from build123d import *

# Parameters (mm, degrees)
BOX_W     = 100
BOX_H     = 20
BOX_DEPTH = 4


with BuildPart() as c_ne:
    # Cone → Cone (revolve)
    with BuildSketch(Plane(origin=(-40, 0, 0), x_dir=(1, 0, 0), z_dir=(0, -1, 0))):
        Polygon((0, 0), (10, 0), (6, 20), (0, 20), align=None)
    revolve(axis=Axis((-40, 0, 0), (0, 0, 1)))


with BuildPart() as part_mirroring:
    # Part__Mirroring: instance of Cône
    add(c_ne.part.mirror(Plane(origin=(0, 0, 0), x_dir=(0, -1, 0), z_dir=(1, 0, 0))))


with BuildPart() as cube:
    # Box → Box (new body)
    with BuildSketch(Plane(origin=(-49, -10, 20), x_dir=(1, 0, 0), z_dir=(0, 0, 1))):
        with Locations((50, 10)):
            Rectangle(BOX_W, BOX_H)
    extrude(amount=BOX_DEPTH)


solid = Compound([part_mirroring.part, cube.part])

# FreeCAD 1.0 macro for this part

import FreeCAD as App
import Part
import Sketcher
from FreeCAD import Vector
Q = App.Units.Quantity

doc = App.newDocument("Part")
body = doc.addObject("PartDesign::Body", "Body")

# Sketch on XZ plane
sketch1 = doc.addObject("Sketcher::SketchObject", "Sketch")
body.addObject(sketch1)
sketch1.AttachmentSupport = (doc.XZ_Plane, [""])
sketch1.MapMode = "FlatFace"
sketch1.addGeometry(Part.LineSegment(Vector(-40, 0, 0), Vector(-30, 0, 0)), False)
sketch1.addGeometry(Part.LineSegment(Vector(-30, 0, 0), Vector(-34, 20, 0)), False)
sketch1.addGeometry(Part.LineSegment(Vector(-34, 20, 0), Vector(-40, 20, 0)), False)
sketch1.addGeometry(Part.LineSegment(Vector(-40, 20, 0), Vector(-40, 0, 0)), False)
sketch1.addGeometry(Part.LineSegment(Vector(-40, 0, 0), Vector(-40, 20, 0)), True)  # axis
sketch1.addConstraint(Sketcher.Constraint("Coincident", 0, 2, 1, 1))
sketch1.addConstraint(Sketcher.Constraint("Coincident", 1, 2, 2, 1))
sketch1.addConstraint(Sketcher.Constraint("Coincident", 2, 2, 3, 1))
sketch1.addConstraint(Sketcher.Constraint("Coincident", 3, 2, 0, 1))
sketch1.addConstraint(Sketcher.Constraint("Horizontal", 0))
sketch1.addConstraint(Sketcher.Constraint("Horizontal", 2))
sketch1.addConstraint(Sketcher.Constraint("Vertical", 3))
sketch1.addConstraint(Sketcher.Constraint("Vertical", 4))
sketch1.addConstraint(Sketcher.Constraint("Coincident", 4, 1, 3, 2))
sketch1.addConstraint(Sketcher.Constraint("PointOnObject", 0, 2, -1))
sketch1.addConstraint(Sketcher.Constraint("Horizontal", 1, 2, 4, 2))
sketch1.addConstraint(Sketcher.Constraint("DistanceX", 0, 1, 0, 2, Q("10 mm")))
sketch1.addConstraint(Sketcher.Constraint("DistanceX", 2, 2, 2, 1, Q("6 mm")))
sketch1.addConstraint(Sketcher.Constraint("DistanceY", 3, 2, 3, 1, Q("20 mm")))
sketch1.addConstraint(Sketcher.Constraint("DistanceX", 0, 2, -1, 1, Q("30 mm")))
revolution = doc.addObject("PartDesign::Revolution", "Revolution")
body.addObject(revolution)
revolution.Profile = sketch1
revolution.ReferenceAxis = (sketch1, ["Axis0"])
revolution.Angle = 360
body2 = doc.addObject("PartDesign::Body", "Body001")
doc.recompute()

mirroring = doc.addObject("Part::Mirroring", "Mirroring")
mirroring.Source = body
mirroring.Base = Vector(0, 0, 0)
mirroring.Normal = Vector(1, 0, 0)
body2.BaseFeature = mirroring
doc.recompute()
body3 = doc.addObject("PartDesign::Body", "Body002")

# Sketch on XY plane
sketch2 = doc.addObject("Sketcher::SketchObject", "Sketch001")
body3.addObject(sketch2)
sketch2.AttachmentSupport = (doc.getObject("XY_Plane002"), [""])
sketch2.MapMode = "FlatFace"
sketch2.AttachmentOffset = App.Placement(Vector(0, 0, 20), App.Rotation())
sketch2.addGeometry(Part.LineSegment(Vector(-49, 10, 0), Vector(-49, -10, 0)), False)
sketch2.addGeometry(Part.LineSegment(Vector(-49, -10, 0), Vector(51, -10, 0)), False)
sketch2.addGeometry(Part.LineSegment(Vector(51, -10, 0), Vector(51, 10, 0)), False)
sketch2.addGeometry(Part.LineSegment(Vector(51, 10, 0), Vector(-49, 10, 0)), False)
sketch2.addConstraint(Sketcher.Constraint("Coincident", 0, 2, 1, 1))
sketch2.addConstraint(Sketcher.Constraint("Coincident", 1, 2, 2, 1))
sketch2.addConstraint(Sketcher.Constraint("Coincident", 2, 2, 3, 1))
sketch2.addConstraint(Sketcher.Constraint("Coincident", 3, 2, 0, 1))
sketch2.addConstraint(Sketcher.Constraint("Vertical", 0))
sketch2.addConstraint(Sketcher.Constraint("Horizontal", 1))
sketch2.addConstraint(Sketcher.Constraint("Vertical", 2))
sketch2.addConstraint(Sketcher.Constraint("Horizontal", 3))
sketch2.addConstraint(Sketcher.Constraint("DistanceX", 1, 1, 1, 2, Q("100 mm")))
sketch2.addConstraint(Sketcher.Constraint("DistanceY", 0, 2, 0, 1, Q("20 mm")))
sketch2.addConstraint(Sketcher.Constraint("DistanceX", 0, 2, -1, 1, Q("49 mm")))
sketch2.addConstraint(Sketcher.Constraint("DistanceY", 0, 2, -1, 1, Q("10 mm")))
pad1 = doc.addObject("PartDesign::Pad", "Pad")
body3.addObject(pad1)
pad1.Profile = sketch2
pad1.Length = 4
body.Visibility = False
mirroring.Visibility = False

doc.recompute()
